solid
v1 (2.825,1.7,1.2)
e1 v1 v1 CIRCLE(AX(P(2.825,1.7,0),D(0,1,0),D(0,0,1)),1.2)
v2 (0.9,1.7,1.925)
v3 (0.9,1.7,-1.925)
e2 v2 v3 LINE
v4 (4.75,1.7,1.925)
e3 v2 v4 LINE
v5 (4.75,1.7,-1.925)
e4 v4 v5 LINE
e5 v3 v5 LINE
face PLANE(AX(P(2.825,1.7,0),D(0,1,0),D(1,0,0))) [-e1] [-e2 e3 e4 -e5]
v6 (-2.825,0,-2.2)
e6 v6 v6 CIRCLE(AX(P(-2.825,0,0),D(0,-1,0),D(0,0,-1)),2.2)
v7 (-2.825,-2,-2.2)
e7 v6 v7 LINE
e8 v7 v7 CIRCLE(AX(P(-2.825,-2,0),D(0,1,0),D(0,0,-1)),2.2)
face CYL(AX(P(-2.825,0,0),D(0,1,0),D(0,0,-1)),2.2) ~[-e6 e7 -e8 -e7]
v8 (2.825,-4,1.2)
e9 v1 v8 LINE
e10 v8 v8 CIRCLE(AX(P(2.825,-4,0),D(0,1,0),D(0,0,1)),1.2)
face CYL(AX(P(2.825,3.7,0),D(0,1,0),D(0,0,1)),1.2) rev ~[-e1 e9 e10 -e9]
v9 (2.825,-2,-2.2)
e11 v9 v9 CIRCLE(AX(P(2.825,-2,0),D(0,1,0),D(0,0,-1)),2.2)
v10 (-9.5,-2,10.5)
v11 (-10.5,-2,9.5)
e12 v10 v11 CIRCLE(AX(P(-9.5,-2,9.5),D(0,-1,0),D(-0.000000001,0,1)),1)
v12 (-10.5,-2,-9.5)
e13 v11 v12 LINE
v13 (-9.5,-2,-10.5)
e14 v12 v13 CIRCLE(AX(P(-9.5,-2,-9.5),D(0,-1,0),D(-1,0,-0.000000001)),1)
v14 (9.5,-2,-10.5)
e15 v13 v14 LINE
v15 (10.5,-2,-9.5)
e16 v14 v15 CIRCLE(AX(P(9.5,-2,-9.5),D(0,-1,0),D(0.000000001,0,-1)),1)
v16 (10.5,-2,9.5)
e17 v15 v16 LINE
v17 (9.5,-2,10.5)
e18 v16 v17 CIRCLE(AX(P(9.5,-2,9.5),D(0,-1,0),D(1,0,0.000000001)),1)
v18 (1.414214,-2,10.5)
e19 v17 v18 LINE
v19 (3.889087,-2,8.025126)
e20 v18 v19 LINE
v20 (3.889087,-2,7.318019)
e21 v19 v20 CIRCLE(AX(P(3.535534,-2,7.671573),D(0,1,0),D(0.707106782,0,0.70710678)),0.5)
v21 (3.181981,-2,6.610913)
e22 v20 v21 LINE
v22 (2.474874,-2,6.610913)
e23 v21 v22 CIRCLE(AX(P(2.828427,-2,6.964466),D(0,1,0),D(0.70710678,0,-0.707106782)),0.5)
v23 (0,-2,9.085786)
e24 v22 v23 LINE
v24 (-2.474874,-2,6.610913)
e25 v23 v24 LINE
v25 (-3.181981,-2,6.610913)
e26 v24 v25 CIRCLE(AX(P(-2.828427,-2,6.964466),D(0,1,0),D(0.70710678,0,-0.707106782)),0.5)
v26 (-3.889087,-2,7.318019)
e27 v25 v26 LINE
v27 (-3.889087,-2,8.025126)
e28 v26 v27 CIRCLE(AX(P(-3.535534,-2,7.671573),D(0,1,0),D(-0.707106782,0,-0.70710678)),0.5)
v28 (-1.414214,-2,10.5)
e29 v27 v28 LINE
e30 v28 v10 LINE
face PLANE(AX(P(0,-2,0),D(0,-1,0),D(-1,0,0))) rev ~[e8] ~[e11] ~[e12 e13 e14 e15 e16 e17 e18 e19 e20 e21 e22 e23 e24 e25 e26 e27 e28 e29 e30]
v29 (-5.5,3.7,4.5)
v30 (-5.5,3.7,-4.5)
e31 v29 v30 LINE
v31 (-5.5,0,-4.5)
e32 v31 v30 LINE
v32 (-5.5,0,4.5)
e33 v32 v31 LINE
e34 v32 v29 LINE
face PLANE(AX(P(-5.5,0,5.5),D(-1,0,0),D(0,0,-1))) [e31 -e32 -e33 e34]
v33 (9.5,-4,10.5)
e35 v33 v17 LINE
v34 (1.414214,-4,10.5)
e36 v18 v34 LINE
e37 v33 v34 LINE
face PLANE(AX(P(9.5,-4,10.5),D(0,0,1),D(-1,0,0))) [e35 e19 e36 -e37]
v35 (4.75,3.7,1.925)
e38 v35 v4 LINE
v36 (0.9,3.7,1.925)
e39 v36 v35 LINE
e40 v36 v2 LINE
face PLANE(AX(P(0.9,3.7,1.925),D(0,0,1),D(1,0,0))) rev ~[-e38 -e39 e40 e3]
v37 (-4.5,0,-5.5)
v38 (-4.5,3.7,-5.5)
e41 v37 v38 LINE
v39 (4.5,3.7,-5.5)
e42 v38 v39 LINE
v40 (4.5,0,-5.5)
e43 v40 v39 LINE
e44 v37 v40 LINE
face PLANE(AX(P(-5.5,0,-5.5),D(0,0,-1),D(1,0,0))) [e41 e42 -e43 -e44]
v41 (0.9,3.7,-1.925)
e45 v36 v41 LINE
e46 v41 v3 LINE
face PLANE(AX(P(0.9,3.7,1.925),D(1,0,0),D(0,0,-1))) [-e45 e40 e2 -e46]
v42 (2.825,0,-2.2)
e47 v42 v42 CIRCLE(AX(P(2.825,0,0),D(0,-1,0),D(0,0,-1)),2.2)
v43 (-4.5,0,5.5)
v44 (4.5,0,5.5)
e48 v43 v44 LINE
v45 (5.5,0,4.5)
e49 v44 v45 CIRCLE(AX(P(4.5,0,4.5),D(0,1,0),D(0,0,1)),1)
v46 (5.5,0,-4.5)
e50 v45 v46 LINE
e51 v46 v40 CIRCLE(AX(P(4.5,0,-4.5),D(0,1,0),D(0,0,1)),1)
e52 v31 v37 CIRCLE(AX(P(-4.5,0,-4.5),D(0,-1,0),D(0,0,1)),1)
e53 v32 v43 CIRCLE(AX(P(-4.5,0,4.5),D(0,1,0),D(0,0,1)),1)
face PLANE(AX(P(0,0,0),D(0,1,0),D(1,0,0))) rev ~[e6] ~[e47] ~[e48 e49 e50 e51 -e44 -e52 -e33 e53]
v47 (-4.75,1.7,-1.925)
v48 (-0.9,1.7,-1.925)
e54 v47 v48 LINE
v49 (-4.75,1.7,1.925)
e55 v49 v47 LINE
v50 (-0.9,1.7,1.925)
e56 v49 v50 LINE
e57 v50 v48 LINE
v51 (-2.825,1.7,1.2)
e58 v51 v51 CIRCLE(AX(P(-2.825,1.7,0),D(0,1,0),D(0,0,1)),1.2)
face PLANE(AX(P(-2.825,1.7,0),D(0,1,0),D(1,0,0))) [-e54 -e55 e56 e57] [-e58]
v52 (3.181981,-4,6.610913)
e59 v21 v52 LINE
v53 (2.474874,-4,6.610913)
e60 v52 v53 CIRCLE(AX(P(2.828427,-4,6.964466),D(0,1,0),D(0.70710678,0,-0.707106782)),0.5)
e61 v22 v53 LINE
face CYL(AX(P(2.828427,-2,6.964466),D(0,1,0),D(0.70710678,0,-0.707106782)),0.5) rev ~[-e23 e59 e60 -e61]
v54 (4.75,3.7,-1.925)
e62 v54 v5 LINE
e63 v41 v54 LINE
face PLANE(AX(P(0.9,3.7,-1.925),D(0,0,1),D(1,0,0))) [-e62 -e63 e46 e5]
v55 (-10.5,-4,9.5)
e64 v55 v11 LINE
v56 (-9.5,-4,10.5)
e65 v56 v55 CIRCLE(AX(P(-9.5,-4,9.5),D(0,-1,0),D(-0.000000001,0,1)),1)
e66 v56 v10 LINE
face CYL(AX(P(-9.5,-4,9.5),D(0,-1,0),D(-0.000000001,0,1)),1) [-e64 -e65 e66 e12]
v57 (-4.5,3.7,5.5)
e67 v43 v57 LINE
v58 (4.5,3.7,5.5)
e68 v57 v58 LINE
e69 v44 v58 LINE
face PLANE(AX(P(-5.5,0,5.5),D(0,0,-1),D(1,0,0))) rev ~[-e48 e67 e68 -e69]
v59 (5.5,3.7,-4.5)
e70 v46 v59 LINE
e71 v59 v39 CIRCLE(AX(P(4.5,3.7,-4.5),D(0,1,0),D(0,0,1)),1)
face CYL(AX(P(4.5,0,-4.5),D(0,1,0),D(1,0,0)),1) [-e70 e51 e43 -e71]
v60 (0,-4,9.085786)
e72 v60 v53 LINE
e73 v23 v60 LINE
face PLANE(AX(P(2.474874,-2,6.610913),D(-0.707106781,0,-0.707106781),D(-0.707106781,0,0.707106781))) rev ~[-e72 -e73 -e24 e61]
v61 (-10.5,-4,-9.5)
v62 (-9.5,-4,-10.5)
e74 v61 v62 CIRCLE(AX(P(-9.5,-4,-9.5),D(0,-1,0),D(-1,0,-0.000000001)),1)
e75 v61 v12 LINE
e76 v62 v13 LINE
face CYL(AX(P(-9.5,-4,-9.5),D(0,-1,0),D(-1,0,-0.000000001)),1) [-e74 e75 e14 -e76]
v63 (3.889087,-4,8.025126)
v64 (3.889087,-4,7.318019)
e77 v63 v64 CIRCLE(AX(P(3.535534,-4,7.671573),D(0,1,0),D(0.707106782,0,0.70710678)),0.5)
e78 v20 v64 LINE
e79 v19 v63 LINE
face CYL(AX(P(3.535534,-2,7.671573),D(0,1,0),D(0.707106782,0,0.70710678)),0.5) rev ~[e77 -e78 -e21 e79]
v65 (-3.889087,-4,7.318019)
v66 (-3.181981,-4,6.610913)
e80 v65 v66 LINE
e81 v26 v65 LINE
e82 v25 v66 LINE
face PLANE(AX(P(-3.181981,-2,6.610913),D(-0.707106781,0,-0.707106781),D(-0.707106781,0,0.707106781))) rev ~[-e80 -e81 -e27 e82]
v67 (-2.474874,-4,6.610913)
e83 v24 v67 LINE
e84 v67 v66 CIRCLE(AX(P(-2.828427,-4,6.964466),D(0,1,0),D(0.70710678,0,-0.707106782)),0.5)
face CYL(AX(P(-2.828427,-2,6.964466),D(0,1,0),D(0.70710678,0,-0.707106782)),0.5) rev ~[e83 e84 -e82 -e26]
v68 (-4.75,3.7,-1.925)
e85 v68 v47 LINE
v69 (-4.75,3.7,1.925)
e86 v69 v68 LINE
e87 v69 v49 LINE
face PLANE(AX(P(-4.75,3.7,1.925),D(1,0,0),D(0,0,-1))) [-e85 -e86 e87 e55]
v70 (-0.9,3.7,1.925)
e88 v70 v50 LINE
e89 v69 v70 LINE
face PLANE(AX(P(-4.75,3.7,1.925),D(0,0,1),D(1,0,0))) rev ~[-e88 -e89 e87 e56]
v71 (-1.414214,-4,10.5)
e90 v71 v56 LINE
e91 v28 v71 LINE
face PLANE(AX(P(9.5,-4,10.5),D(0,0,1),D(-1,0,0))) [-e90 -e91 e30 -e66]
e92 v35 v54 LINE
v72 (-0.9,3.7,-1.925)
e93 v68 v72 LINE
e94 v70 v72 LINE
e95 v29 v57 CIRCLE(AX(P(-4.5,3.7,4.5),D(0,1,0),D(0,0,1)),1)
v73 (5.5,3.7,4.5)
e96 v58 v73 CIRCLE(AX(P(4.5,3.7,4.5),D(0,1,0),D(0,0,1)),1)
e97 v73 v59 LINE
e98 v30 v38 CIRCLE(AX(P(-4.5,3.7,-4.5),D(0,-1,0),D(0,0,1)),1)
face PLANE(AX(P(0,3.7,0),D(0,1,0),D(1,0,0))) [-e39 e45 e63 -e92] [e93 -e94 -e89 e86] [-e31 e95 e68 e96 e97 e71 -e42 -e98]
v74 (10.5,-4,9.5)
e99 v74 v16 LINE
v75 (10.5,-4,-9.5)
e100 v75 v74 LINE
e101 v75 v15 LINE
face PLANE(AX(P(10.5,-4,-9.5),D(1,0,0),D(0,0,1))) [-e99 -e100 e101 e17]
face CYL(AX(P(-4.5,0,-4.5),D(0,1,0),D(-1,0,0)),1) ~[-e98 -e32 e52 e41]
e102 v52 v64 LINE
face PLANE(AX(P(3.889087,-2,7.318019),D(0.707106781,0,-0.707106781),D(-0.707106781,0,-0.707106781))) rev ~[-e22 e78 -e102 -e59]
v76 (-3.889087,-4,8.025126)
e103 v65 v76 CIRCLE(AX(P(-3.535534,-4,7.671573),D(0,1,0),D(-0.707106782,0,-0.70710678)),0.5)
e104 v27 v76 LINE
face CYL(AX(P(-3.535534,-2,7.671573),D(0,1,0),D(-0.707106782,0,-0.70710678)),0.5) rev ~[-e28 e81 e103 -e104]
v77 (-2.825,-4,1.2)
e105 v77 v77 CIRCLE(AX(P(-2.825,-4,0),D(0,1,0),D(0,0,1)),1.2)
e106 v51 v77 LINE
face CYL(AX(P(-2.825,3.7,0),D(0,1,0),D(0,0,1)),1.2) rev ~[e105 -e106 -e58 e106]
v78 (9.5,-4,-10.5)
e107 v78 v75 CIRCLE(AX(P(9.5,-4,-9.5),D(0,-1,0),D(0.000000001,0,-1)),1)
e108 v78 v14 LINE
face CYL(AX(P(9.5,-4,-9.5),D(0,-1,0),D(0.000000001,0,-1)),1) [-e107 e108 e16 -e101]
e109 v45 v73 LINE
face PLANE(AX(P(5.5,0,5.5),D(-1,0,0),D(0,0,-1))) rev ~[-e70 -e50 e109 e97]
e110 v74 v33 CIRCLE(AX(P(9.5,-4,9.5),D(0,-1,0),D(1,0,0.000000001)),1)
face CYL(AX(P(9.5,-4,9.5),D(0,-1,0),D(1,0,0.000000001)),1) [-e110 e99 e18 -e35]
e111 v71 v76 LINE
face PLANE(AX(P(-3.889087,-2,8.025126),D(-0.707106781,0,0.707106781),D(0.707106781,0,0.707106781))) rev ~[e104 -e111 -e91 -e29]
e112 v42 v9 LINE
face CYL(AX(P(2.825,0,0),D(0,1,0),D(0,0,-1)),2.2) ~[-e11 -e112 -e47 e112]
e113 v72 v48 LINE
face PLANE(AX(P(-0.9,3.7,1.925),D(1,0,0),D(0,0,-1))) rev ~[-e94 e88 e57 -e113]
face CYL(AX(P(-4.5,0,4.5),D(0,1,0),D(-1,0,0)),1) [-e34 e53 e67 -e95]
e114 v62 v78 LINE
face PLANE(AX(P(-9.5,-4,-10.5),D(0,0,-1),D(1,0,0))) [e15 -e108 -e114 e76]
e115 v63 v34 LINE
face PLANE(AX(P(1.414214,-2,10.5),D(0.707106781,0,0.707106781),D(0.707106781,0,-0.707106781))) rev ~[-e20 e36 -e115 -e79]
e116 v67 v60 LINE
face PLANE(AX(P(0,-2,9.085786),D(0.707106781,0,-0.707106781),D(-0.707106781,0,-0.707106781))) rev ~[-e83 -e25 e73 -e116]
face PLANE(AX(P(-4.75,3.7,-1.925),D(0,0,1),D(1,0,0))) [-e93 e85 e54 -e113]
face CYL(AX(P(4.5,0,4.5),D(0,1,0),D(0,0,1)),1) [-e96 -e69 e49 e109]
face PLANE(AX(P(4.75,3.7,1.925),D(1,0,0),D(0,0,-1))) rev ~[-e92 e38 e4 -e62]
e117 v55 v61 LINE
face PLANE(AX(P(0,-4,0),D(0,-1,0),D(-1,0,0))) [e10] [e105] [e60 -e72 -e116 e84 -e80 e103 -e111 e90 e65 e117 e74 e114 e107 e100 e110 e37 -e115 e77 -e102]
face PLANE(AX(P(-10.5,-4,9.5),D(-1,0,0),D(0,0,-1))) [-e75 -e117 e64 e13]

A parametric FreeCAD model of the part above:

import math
import FreeCAD as App
import Part
import Sketcher

V = App.Vector


def edges_at(feature, points):
    """Names of the edges that pass closest to the given points."""
    edges = feature.Shape.Edges
    near = lambda p: min(range(len(edges)), key=lambda i: edges[i].distToShape(Part.Vertex(*p))[0])
    return sorted({f"Edge{near(p) + 1}" for p in points})

doc = App.newDocument("Part")
body = doc.addObject("PartDesign::Body", "Body")

# Sketch on XZ plane
sketch1 = doc.addObject("Sketcher::SketchObject", "Sketch")
body.addObject(sketch1)
sketch1.AttachmentSupport = (doc.XZ_Plane, [""])
sketch1.MapMode = "FlatFace"
sketch1.addGeometry(Part.LineSegment(V(-6, -6, 0), V(-6, 6, 0)), False)
sketch1.addGeometry(Part.LineSegment(V(-6, 6, 0), V(6, 6, 0)), False)
sketch1.addGeometry(Part.LineSegment(V(6, 6, 0), V(6, -6, 0)), False)
sketch1.addGeometry(Part.LineSegment(V(6, -6, 0), V(-6, -6, 0)), False)
sketch1.addConstraint(Sketcher.Constraint("Coincident", 0, 2, 1, 1))
sketch1.addConstraint(Sketcher.Constraint("Coincident", 1, 2, 2, 1))
sketch1.addConstraint(Sketcher.Constraint("Coincident", 2, 2, 3, 1))
sketch1.addConstraint(Sketcher.Constraint("Coincident", 3, 2, 0, 1))
sketch1.addConstraint(Sketcher.Constraint("Vertical", 0))
sketch1.addConstraint(Sketcher.Constraint("Horizontal", 1))
sketch1.addConstraint(Sketcher.Constraint("Vertical", 2))
sketch1.addConstraint(Sketcher.Constraint("Horizontal", 3))
sketch1.addConstraint(Sketcher.Constraint("Symmetric", 0, 2, 2, 2, -1, 1))
sketch1.addConstraint(Sketcher.Constraint("Equal", 3, 0))
sketch1.addConstraint(Sketcher.Constraint("DistanceX", 1, 1, 1, 2, 11.0))
pad1 = doc.addObject("PartDesign::Pad", "Pad")
body.addObject(pad1)
pad1.Profile = sketch1
pad1.Length = 3.7
pad1.Reversed = True
doc.recompute()

fillet = doc.addObject("PartDesign::Fillet", "Fillet")
body.addObject(fillet)
fillet.Base = (pad1, edges_at(pad1, [
    (5.5, 1.85, 5.5),
    (-5.5, 1.85, 5.5),
    (-5.5, 1.85, -5.5),
    (5.5, 1.85, -5.5),
]))
fillet.Radius = 1

# Sketch on XZ plane
sketch2 = doc.addObject("Sketcher::SketchObject", "Sketch001")
body.addObject(sketch2)
sketch2.AttachmentSupport = (doc.XZ_Plane, [""])
sketch2.MapMode = "FlatFace"
sketch2.AttachmentOffset = App.Placement(V(0, 0, -3.7), App.Rotation())
sketch2.addGeometry(Part.LineSegment(V(-4.8, -1.9, 0), V(-4.8, 1.9, 0)), False)
sketch2.addGeometry(Part.LineSegment(V(-4.8, 1.9, 0), V(-0.9, 1.9, 0)), False)
sketch2.addGeometry(Part.LineSegment(V(-0.9, 1.9, 0), V(-0.9, -1.9, 0)), False)
sketch2.addGeometry(Part.LineSegment(V(-0.9, -1.9, 0), V(-4.8, -1.9, 0)), False)
sketch2.addGeometry(Part.LineSegment(V(0.9, -1.9, 0), V(0.9, 1.9, 0)), False)
sketch2.addGeometry(Part.LineSegment(V(0.9, 1.9, 0), V(4.8, 1.9, 0)), False)
sketch2.addGeometry(Part.LineSegment(V(4.8, 1.9, 0), V(4.8, -1.9, 0)), False)
sketch2.addGeometry(Part.LineSegment(V(4.8, -1.9, 0), V(0.9, -1.9, 0)), False)
sketch2.addConstraint(Sketcher.Constraint("Coincident", 0, 2, 1, 1))
sketch2.addConstraint(Sketcher.Constraint("Coincident", 1, 2, 2, 1))
sketch2.addConstraint(Sketcher.Constraint("Coincident", 2, 2, 3, 1))
sketch2.addConstraint(Sketcher.Constraint("Coincident", 3, 2, 0, 1))
sketch2.addConstraint(Sketcher.Constraint("Coincident", 4, 2, 5, 1))
sketch2.addConstraint(Sketcher.Constraint("Coincident", 5, 2, 6, 1))
sketch2.addConstraint(Sketcher.Constraint("Coincident", 6, 2, 7, 1))
sketch2.addConstraint(Sketcher.Constraint("Coincident", 7, 2, 4, 1))
sketch2.addConstraint(Sketcher.Constraint("Vertical", 0))
sketch2.addConstraint(Sketcher.Constraint("Horizontal", 1))
sketch2.addConstraint(Sketcher.Constraint("Vertical", 2))
sketch2.addConstraint(Sketcher.Constraint("Horizontal", 3))
sketch2.addConstraint(Sketcher.Constraint("Vertical", 4))
sketch2.addConstraint(Sketcher.Constraint("Horizontal", 5))
sketch2.addConstraint(Sketcher.Constraint("Vertical", 6))
sketch2.addConstraint(Sketcher.Constraint("Horizontal", 7))
sketch2.addConstraint(Sketcher.Constraint("Symmetric", 2, 2, 4, 2, -1, 1))
sketch2.addConstraint(Sketcher.Constraint("Symmetric", 0, 2, 6, 2, -1, 1))
sketch2.addConstraint(Sketcher.Constraint("Horizontal", 1, 2, 4, 2))
sketch2.addConstraint(Sketcher.Constraint("Equal", 7, 0))
sketch2.addConstraint(Sketcher.Constraint("DistanceX", 1, 1, 1, 2, 3.85))
sketch2.addConstraint(Sketcher.Constraint("DistanceX", 1, 2, -1, 1, 0.9))
pocket1 = doc.addObject("PartDesign::Pocket", "Pocket")
body.addObject(pocket1)
pocket1.Profile = sketch2
pocket1.Length = 2
pocket1.Reversed = True

# Sketch on XZ plane
sketch3 = doc.addObject("Sketcher::SketchObject", "Sketch002")
body.addObject(sketch3)
sketch3.AttachmentSupport = (doc.XZ_Plane, [""])
sketch3.MapMode = "FlatFace"
sketch3.addGeometry(Part.Circle(V(-2.8, 0, 0), V(0, 0, 1), 2.2), False)
sketch3.addGeometry(Part.Circle(V(2.8, 0, 0), V(0, 0, 1), 2.2), False)
sketch3.addConstraint(Sketcher.Constraint("Equal", 0, 1))
sketch3.addConstraint(Sketcher.Constraint("Symmetric", 0, 3, 1, 3, -1, 1))
sketch3.addConstraint(Sketcher.Constraint("PointOnObject", 0, 3, -1))
sketch3.addConstraint(Sketcher.Constraint("Diameter", 0, 4.4))
sketch3.addConstraint(Sketcher.Constraint("DistanceX", 0, 3, 1, 3, 5.65))
pad2 = doc.addObject("PartDesign::Pad", "Pad001")
body.addObject(pad2)
pad2.Profile = sketch3
pad2.Length = 4

# Sketch on XZ plane
sketch4 = doc.addObject("Sketcher::SketchObject", "Sketch003")
body.addObject(sketch4)
sketch4.AttachmentSupport = (doc.XZ_Plane, [""])
sketch4.MapMode = "FlatFace"
sketch4.AttachmentOffset = App.Placement(V(0, 0, 4), App.Rotation())
sketch4.addGeometry(Part.LineSegment(V(-9.5, -10.5, 0), V(9.5, -10.5, 0)), False)
sketch4.addGeometry(Part.ArcOfCircle(Part.Circle(V(9.5, -9.5, 0), V(0, 0, 1), 1), math.radians(-90), math.radians(0)), False)
sketch4.addGeometry(Part.LineSegment(V(10.5, -9.5, 0), V(10.5, 9.5, 0)), False)
sketch4.addGeometry(Part.ArcOfCircle(Part.Circle(V(9.5, 9.5, 0), V(0, 0, 1), 1), math.radians(0), math.radians(90)), False)
sketch4.addGeometry(Part.LineSegment(V(9.5, 10.5, 0), V(-9.5, 10.5, 0)), False)
sketch4.addGeometry(Part.ArcOfCircle(Part.Circle(V(-9.5, 9.5, 0), V(0, 0, 1), 1), math.radians(90), math.radians(180)), False)
sketch4.addGeometry(Part.LineSegment(V(-10.5, 9.5, 0), V(-10.5, -9.5, 0)), False)
sketch4.addGeometry(Part.ArcOfCircle(Part.Circle(V(-9.5, -9.5, 0), V(0, 0, 1), 1), math.radians(-180), math.radians(-90)), False)
sketch4.addConstraint(Sketcher.Constraint("Tangent", 0, 2, 1, 1))
sketch4.addConstraint(Sketcher.Constraint("Tangent", 1, 2, 2, 1))
sketch4.addConstraint(Sketcher.Constraint("Tangent", 2, 2, 3, 1))
sketch4.addConstraint(Sketcher.Constraint("Tangent", 3, 2, 4, 1))
sketch4.addConstraint(Sketcher.Constraint("Tangent", 4, 2, 5, 1))
sketch4.addConstraint(Sketcher.Constraint("Tangent", 5, 2, 6, 1))
sketch4.addConstraint(Sketcher.Constraint("Tangent", 6, 2, 7, 1))
sketch4.addConstraint(Sketcher.Constraint("Tangent", 7, 2, 0, 1))
sketch4.addConstraint(Sketcher.Constraint("Horizontal", 0))
sketch4.addConstraint(Sketcher.Constraint("Vertical", 2))
sketch4.addConstraint(Sketcher.Constraint("Horizontal", 4))
sketch4.addConstraint(Sketcher.Constraint("Vertical", 6))
sketch4.addConstraint(Sketcher.Constraint("Equal", 1, 3))
sketch4.addConstraint(Sketcher.Constraint("Equal", 3, 5))
sketch4.addConstraint(Sketcher.Constraint("Equal", 5, 7))
sketch4.addConstraint(Sketcher.Constraint("Symmetric", 1, 3, 5, 3, -1, 1))
sketch4.addConstraint(Sketcher.Constraint("Equal", 4, 2))
sketch4.addConstraint(Sketcher.Constraint("Radius", 1, 1.0))
sketch4.addConstraint(Sketcher.Constraint("DistanceX", 0, 1, 0, 2, 19.0))
pad3 = doc.addObject("PartDesign::Pad", "Pad002")
body.addObject(pad3)
pad3.Profile = sketch4
pad3.Length = 2
pad3.Reversed = True

# Sketch on XZ plane
sketch5 = doc.addObject("Sketcher::SketchObject", "Sketch004")
body.addObject(sketch5)
sketch5.AttachmentSupport = (doc.XZ_Plane, [""])
sketch5.MapMode = "FlatFace"
sketch5.AttachmentOffset = App.Placement(V(0, 0, -3.7), App.Rotation())
sketch5.addGeometry(Part.Circle(V(-2.8, 0, 0), V(0, 0, 1), 1.2), False)
sketch5.addGeometry(Part.Circle(V(2.8, 0, 0), V(0, 0, 1), 1.2), False)
sketch5.addConstraint(Sketcher.Constraint("Equal", 0, 1))
sketch5.addConstraint(Sketcher.Constraint("Symmetric", 0, 3, 1, 3, -1, 1))
sketch5.addConstraint(Sketcher.Constraint("PointOnObject", 0, 3, -1))
sketch5.addConstraint(Sketcher.Constraint("Diameter", 0, 2.4))
sketch5.addConstraint(Sketcher.Constraint("DistanceX", 0, 3, 1, 3, 5.65))
pocket2 = doc.addObject("PartDesign::Pocket", "Pocket001")
body.addObject(pocket2)
pocket2.Profile = sketch5
pocket2.Type = "ThroughAll"
pocket2.Reversed = True

# Sketch on XZ plane
sketch6 = doc.addObject("Sketcher::SketchObject", "Sketch005")
body.addObject(sketch6)
sketch6.AttachmentSupport = (doc.XZ_Plane, [""])
sketch6.MapMode = "FlatFace"
sketch6.AttachmentOffset = App.Placement(V(0, 0, 2), App.Rotation())
sketch6.addGeometry(Part.LineSegment(V(1.4, 10.5, 0), V(3.9, 8, 0)), False)
sketch6.addGeometry(Part.ArcOfCircle(Part.Circle(V(3.5, 7.7, 0), V(0, 0, 1), 0.5), math.radians(-45), math.radians(45)), False)
sketch6.addGeometry(Part.LineSegment(V(3.9, 7.3, 0), V(3.2, 6.6, 0)), False)
sketch6.addGeometry(Part.ArcOfCircle(Part.Circle(V(2.8, 7, 0), V(0, 0, 1), 0.5), math.radians(-135), math.radians(-45)), False)
sketch6.addGeometry(Part.LineSegment(V(2.5, 6.6, 0), V(0, 9.1, 0)), False)
sketch6.addGeometry(Part.LineSegment(V(0, 9.1, 0), V(-2.5, 6.6, 0)), False)
sketch6.addGeometry(Part.ArcOfCircle(Part.Circle(V(-2.8, 7, 0), V(0, 0, 1), 0.5), math.radians(-135), math.radians(-45)), False)
sketch6.addGeometry(Part.LineSegment(V(-3.2, 6.6, 0), V(-3.9, 7.3, 0)), False)
sketch6.addGeometry(Part.ArcOfCircle(Part.Circle(V(-3.5, 7.7, 0), V(0, 0, 1), 0.5), math.radians(135), math.radians(225)), False)
sketch6.addGeometry(Part.LineSegment(V(-3.9, 8, 0), V(-1.4, 10.5, 0)), False)
sketch6.addGeometry(Part.LineSegment(V(-1.4, 10.5, 0), V(1.4, 10.5, 0)), False)
sketch6.addConstraint(Sketcher.Constraint("Tangent", 0, 2, 1, 2))
sketch6.addConstraint(Sketcher.Constraint("Tangent", 1, 1, 2, 1))
sketch6.addConstraint(Sketcher.Constraint("Tangent", 2, 2, 3, 2))
sketch6.addConstraint(Sketcher.Constraint("Tangent", 3, 1, 4, 1))
sketch6.addConstraint(Sketcher.Constraint("Coincident", 4, 2, 5, 1))
sketch6.addConstraint(Sketcher.Constraint("Tangent", 5, 2, 6, 2))
sketch6.addConstraint(Sketcher.Constraint("Tangent", 6, 1, 7, 1))
sketch6.addConstraint(Sketcher.Constraint("Tangent", 7, 2, 8, 2))
sketch6.addConstraint(Sketcher.Constraint("Tangent", 8, 1, 9, 1))
sketch6.addConstraint(Sketcher.Constraint("Coincident", 9, 2, 10, 1))
sketch6.addConstraint(Sketcher.Constraint("Coincident", 10, 2, 0, 1))
sketch6.addConstraint(Sketcher.Constraint("Horizontal", 10))
sketch6.addConstraint(Sketcher.Constraint("Equal", 1, 3))
sketch6.addConstraint(Sketcher.Constraint("Equal", 3, 6))
sketch6.addConstraint(Sketcher.Constraint("Equal", 6, 8))
sketch6.addConstraint(Sketcher.Constraint("Symmetric", 3, 3, 6, 3, -2))
sketch6.addConstraint(Sketcher.Constraint("Symmetric", 1, 3, 8, 3, -2))
sketch6.addConstraint(Sketcher.Constraint("PointOnObject", 4, 2, -2))
sketch6.addConstraint(Sketcher.Constraint("Perpendicular", 0, 2))
sketch6.addConstraint(Sketcher.Constraint("Perpendicular", 2, 4))
sketch6.addConstraint(Sketcher.Constraint("Perpendicular", 4, 5))
sketch6.addConstraint(Sketcher.Constraint("Perpendicular", 7, 9))
sketch6.addConstraint(Sketcher.Constraint("Equal", 0, 4))
sketch6.addConstraint(Sketcher.Constraint("Radius", 1, 0.5))
sketch6.addConstraint(Sketcher.Constraint("Distance", 2, 1.0))
sketch6.addConstraint(Sketcher.Constraint("Distance", 0, 3.5))
sketch6.addConstraint(Sketcher.Constraint("DistanceY", -1, 1, 9, 2, 10.5))
pocket3 = doc.addObject("PartDesign::Pocket", "Pocket002")
body.addObject(pocket3)
pocket3.Profile = sketch6
pocket3.Type = "ThroughAll"
pocket3.Reversed = True

doc.recompute()
